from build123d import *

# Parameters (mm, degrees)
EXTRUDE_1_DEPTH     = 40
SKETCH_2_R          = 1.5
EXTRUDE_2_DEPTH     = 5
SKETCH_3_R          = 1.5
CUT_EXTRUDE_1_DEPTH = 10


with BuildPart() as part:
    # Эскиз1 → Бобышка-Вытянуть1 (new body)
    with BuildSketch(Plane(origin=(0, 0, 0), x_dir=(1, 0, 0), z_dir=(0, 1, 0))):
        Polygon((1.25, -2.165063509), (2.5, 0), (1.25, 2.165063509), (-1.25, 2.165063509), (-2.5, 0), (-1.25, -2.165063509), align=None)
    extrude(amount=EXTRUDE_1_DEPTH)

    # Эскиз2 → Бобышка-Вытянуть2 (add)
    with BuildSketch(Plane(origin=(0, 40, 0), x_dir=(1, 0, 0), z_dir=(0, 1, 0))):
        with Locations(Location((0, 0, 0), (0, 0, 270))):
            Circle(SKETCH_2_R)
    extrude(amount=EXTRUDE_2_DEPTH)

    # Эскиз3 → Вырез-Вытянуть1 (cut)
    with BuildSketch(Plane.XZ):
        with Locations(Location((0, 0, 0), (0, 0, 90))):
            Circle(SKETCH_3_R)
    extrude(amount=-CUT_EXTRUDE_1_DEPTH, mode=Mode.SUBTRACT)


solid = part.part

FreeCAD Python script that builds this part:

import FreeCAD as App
import Part
import Sketcher
Q = App.Units.Quantity

doc = App.newDocument("Part")
body = doc.addObject("PartDesign::Body", "Body")

sketch1 = body.newObject("Sketcher::SketchObject", "Sketch")
sketch1.AttachmentSupport = (doc.getObject("XZ_Plane"), [""])
sketch1.MapMode = "FlatFace"
sketch1.addGeometry(Part.LineSegment(App.Vector(1.2, 2.2, 0), App.Vector(2.5, 0, 0)), False)
sketch1.addGeometry(Part.LineSegment(App.Vector(2.5, 0, 0), App.Vector(1.2, -2.2, 0)), False)
sketch1.addGeometry(Part.LineSegment(App.Vector(1.2, -2.2, 0), App.Vector(-1.2, -2.2, 0)), False)
sketch1.addGeometry(Part.LineSegment(App.Vector(-1.2, -2.2, 0), App.Vector(-2.5, 0, 0)), False)
sketch1.addGeometry(Part.LineSegment(App.Vector(-2.5, 0, 0), App.Vector(-1.2, 2.2, 0)), False)
sketch1.addGeometry(Part.LineSegment(App.Vector(-1.2, 2.2, 0), App.Vector(1.2, 2.2, 0)), False)
sketch1.addConstraint(Sketcher.Constraint("Coincident", 0, 2, 1, 1))
sketch1.addConstraint(Sketcher.Constraint("Coincident", 1, 2, 2, 1))
sketch1.addConstraint(Sketcher.Constraint("Coincident", 2, 2, 3, 1))
sketch1.addConstraint(Sketcher.Constraint("Coincident", 3, 2, 4, 1))
sketch1.addConstraint(Sketcher.Constraint("Coincident", 4, 2, 5, 1))
sketch1.addConstraint(Sketcher.Constraint("Coincident", 5, 2, 0, 1))
sketch1.addConstraint(Sketcher.Constraint("Horizontal", 2))
sketch1.addConstraint(Sketcher.Constraint("Horizontal", 5))
sketch1.addConstraint(Sketcher.Constraint("Symmetric", 0, 2, 3, 2, -1, 1))
sketch1.addConstraint(Sketcher.Constraint("Symmetric", 1, 2, 4, 2, -1, 1))
sketch1.addConstraint(Sketcher.Constraint("PointOnObject", 0, 2, -1))
sketch1.addConstraint(Sketcher.Constraint("Parallel", 0, 3))
sketch1.addConstraint(Sketcher.Constraint("Vertical", 2, 2, 4, 2))
sketch1.addConstraint(Sketcher.Constraint("Angle", 0, Q("-60 deg")))
sketch1.addConstraint(Sketcher.Constraint("DistanceX", 2, 2, 2, 1, Q("2.5 mm")))
sketch1.addConstraint(Sketcher.Constraint("DistanceX", 3, 2, 0, 2, Q("5 mm")))
pad1 = body.newObject("PartDesign::Pad", "Pad")
pad1.Profile = sketch1
pad1.Length = 40
pad1.Reversed = True

sketch2 = body.newObject("Sketcher::SketchObject", "Sketch001")
sketch2.AttachmentSupport = (doc.getObject("XZ_Plane"), [""])
sketch2.MapMode = "FlatFace"
sketch2.AttachmentOffset = App.Placement(App.Vector(0, 0, -40), App.Rotation())
sketch2.addGeometry(Part.Circle(App.Vector(0, 0, 0), App.Vector(0, 0, 1), 1.5), False)
sketch2.addConstraint(Sketcher.Constraint("Coincident", 0, 3, -1, 1))
sketch2.addConstraint(Sketcher.Constraint("Diameter", 0, Q("3 mm")))
pad2 = body.newObject("PartDesign::Pad", "Pad001")
pad2.Profile = sketch2
pad2.Length = 5
pad2.Reversed = True

sketch3 = body.newObject("Sketcher::SketchObject", "Sketch002")
sketch3.AttachmentSupport = (doc.getObject("XZ_Plane"), [""])
sketch3.MapMode = "FlatFace"
sketch3.addGeometry(Part.Circle(App.Vector(0, 0, 0), App.Vector(0, 0, 1), 1.5), False)
sketch3.addConstraint(Sketcher.Constraint("Coincident", 0, 3, -1, 1))
sketch3.addConstraint(Sketcher.Constraint("Diameter", 0, Q("3 mm")))
pocket1 = body.newObject("PartDesign::Pocket", "Pocket")
pocket1.Profile = sketch3
pocket1.Length = 10

doc.recompute()
